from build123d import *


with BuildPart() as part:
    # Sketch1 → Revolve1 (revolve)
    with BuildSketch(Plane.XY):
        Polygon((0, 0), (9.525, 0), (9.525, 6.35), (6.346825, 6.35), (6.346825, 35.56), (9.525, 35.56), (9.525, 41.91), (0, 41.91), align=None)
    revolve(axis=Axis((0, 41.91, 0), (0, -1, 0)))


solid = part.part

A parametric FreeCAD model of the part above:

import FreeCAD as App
import Part
import Sketcher
Q = App.Units.Quantity

doc = App.newDocument("Part")
body = doc.addObject("PartDesign::Body", "Body")

# Sketch on XY plane
sketch1 = doc.addObject("Sketcher::SketchObject", "Sketch")
body.addObject(sketch1)
sketch1.AttachmentSupport = (doc.XY_Plane, [""])
sketch1.MapMode = "FlatFace"
sketch1.addGeometry([
    Part.LineSegment(App.Vector(0, 0, 0), App.Vector(9.5, 0, 0)),  # 0
    Part.LineSegment(App.Vector(9.5, 0, 0), App.Vector(9.5, 6.3, 0)),  # 1
    Part.LineSegment(App.Vector(9.5, 6.3, 0), App.Vector(6.3, 6.3, 0)),  # 2
    Part.LineSegment(App.Vector(6.3, 6.3, 0), App.Vector(6.3, 35.6, 0)),  # 3
    Part.LineSegment(App.Vector(6.3, 35.6, 0), App.Vector(9.5, 35.6, 0)),  # 4
    Part.LineSegment(App.Vector(9.5, 35.6, 0), App.Vector(9.5, 41.9, 0)),  # 5
    Part.LineSegment(App.Vector(9.5, 41.9, 0), App.Vector(0, 41.9, 0)),  # 6
    Part.LineSegment(App.Vector(0, 41.9, 0), App.Vector(0, 0, 0)),  # 7
], False)
sketch1.addConstraint([
    Sketcher.Constraint("Coincident", 0, 2, 1, 1),
    Sketcher.Constraint("Coincident", 1, 2, 2, 1),
    Sketcher.Constraint("Coincident", 2, 2, 3, 1),
    Sketcher.Constraint("Coincident", 3, 2, 4, 1),
    Sketcher.Constraint("Coincident", 4, 2, 5, 1),
    Sketcher.Constraint("Coincident", 5, 2, 6, 1),
    Sketcher.Constraint("Coincident", 6, 2, 7, 1),
    Sketcher.Constraint("Coincident", 7, 2, 0, 1),
    Sketcher.Constraint("Horizontal", 0),
    Sketcher.Constraint("Vertical", 1),
    Sketcher.Constraint("Horizontal", 2),
    Sketcher.Constraint("Vertical", 3),
    Sketcher.Constraint("Horizontal", 4),
    Sketcher.Constraint("Vertical", 5),
    Sketcher.Constraint("Horizontal", 6),
    Sketcher.Constraint("Vertical", 7),
    Sketcher.Constraint("Coincident", 7, 2, -1, 1),
    Sketcher.Constraint("Vertical", 1, 2, 4, 2),
    Sketcher.Constraint("Equal", 1, 5),
    Sketcher.Constraint("DistanceY", 1, 1, 1, 2, Q("0.25 in")),
    Sketcher.Constraint("DistanceY", 3, 1, 3, 2, Q("1.15 in")),
    Sketcher.Constraint("DistanceX", 0, 1, 0, 2, Q("0.375 in")),
    Sketcher.Constraint("DistanceX", 2, 2, 2, 1, 3.178175),
])
revolution = doc.addObject("PartDesign::Revolution", "Revolution")
body.addObject(revolution)
revolution.Profile = sketch1
revolution.ReferenceAxis = (sketch1, ["V_Axis"])
revolution.Angle = 360

doc.recompute()
